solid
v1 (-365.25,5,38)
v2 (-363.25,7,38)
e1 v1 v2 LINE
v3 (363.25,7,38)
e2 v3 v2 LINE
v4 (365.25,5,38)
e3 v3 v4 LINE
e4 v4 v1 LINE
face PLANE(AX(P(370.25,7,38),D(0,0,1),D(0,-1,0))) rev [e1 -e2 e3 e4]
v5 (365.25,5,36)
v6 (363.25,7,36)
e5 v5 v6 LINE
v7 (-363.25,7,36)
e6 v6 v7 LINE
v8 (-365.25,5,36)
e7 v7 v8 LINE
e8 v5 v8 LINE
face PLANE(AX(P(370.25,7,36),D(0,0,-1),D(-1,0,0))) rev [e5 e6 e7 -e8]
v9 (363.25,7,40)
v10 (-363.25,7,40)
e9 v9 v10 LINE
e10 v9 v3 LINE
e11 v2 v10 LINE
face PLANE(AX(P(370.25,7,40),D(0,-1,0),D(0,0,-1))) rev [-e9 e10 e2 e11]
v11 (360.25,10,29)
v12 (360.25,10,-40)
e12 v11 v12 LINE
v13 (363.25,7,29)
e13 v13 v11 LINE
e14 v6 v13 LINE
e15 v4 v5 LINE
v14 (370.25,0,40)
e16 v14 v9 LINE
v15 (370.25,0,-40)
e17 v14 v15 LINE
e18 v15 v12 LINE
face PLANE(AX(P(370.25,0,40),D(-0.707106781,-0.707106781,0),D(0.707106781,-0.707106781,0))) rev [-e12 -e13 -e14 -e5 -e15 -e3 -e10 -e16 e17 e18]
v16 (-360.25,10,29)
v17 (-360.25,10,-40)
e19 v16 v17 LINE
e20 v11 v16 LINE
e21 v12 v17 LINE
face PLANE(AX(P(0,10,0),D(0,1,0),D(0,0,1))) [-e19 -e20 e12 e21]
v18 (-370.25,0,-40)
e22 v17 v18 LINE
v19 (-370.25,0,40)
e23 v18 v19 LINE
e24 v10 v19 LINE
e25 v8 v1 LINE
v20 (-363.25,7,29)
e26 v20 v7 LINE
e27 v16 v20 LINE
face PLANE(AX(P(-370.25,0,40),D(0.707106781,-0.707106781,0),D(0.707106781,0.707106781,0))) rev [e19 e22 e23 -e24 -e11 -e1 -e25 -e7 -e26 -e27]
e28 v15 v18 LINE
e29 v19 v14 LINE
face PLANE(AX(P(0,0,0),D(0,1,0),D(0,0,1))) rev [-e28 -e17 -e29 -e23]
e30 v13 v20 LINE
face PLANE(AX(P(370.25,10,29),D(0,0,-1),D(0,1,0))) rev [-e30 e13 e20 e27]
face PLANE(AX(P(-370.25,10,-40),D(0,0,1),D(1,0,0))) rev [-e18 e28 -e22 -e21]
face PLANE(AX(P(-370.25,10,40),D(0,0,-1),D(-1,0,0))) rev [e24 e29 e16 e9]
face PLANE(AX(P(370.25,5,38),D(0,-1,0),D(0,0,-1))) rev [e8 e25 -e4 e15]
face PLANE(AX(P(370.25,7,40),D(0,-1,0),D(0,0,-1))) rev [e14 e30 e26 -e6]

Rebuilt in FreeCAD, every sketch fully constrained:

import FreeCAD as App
import Part
import Sketcher
from FreeCAD import Vector
Q = App.Units.Quantity


def add_polygon(sketch, points):
    """Adds a closed chain of lines whose ends are joined by coincident constraints."""
    first, n = sketch.GeometryCount, len(points)
    for a, b in zip(points, points[1:] + points[:1]):
        sketch.addGeometry(Part.LineSegment(App.Vector(*a, 0), App.Vector(*b, 0)), False)
    for i in range(n):
        sketch.addConstraint(Sketcher.Constraint("Coincident", first + i, 2, first + (i + 1) % n, 1))

doc = App.newDocument("Part")
body = doc.addObject("PartDesign::Body", "Body")

# Sketch on XZ plane
sketch1 = body.newObject("Sketcher::SketchObject", "Sketch")
sketch1.AttachmentSupport = (doc.getObject("XZ_Plane"), [""])
sketch1.MapMode = "FlatFace"
add_polygon(sketch1, [(-370, -40), (-370, 40), (370, 40), (370, -40)])  # lines 0-3
sketch1.addConstraint([
    Sketcher.Constraint("Vertical", 0),
    Sketcher.Constraint("Horizontal", 1),
    Sketcher.Constraint("Vertical", 2),
    Sketcher.Constraint("Horizontal", 3),
    Sketcher.Constraint("Symmetric", 0, 2, 2, 2, -1, 1),
    Sketcher.Constraint("DistanceY", 0, 1, 0, 2, Q("80 mm")),
    Sketcher.Constraint("DistanceX", 1, 1, 1, 2, Q("740.5 mm")),
])
pad1 = body.newObject("PartDesign::Pad", "Pad")
pad1.Profile = sketch1
pad1.Length = 10
pad1.Reversed = True

# Sketch on YZ plane
sketch2 = body.newObject("Sketcher::SketchObject", "Sketch001")
sketch2.AttachmentSupport = (doc.getObject("YZ_Plane"), [""])
sketch2.MapMode = "FlatFace"
sketch2.AttachmentOffset = App.Placement(Vector(0, 0, -370.25), App.Rotation())
add_polygon(sketch2, [(10, 29), (7, 29), (7, 40), (10, 40)])  # lines 0-3
sketch2.addConstraint([
    Sketcher.Constraint("Horizontal", 0),
    Sketcher.Constraint("Vertical", 1),
    Sketcher.Constraint("Horizontal", 2),
    Sketcher.Constraint("Vertical", 3),
    Sketcher.Constraint("DistanceX", 0, 2, 0, 1, Q("3 mm")),
    Sketcher.Constraint("DistanceY", 1, 1, 1, 2, Q("11 mm")),
    Sketcher.Constraint("DistanceX", -1, 1, 0, 2, Q("7 mm")),
    Sketcher.Constraint("DistanceY", -1, 1, 0, 2, Q("29 mm")),
])
pocket1 = body.newObject("PartDesign::Pocket", "Pocket")
pocket1.Profile = sketch2
pocket1.Type = "ThroughAll"
pocket1.Reversed = True

# Sketch on YZ plane
sketch3 = body.newObject("Sketcher::SketchObject", "Sketch002")
sketch3.AttachmentSupport = (doc.getObject("YZ_Plane"), [""])
sketch3.MapMode = "FlatFace"
sketch3.AttachmentOffset = App.Placement(Vector(0, 0, -370.25), App.Rotation())
add_polygon(sketch3, [(7, 36), (5, 36), (5, 38), (7, 38)])  # lines 0-3
sketch3.addConstraint([
    Sketcher.Constraint("Horizontal", 0),
    Sketcher.Constraint("Vertical", 1),
    Sketcher.Constraint("Horizontal", 2),
    Sketcher.Constraint("Vertical", 3),
    Sketcher.Constraint("Equal", 2, 1),
    Sketcher.Constraint("DistanceX", 0, 2, 0, 1, Q("2 mm")),
    Sketcher.Constraint("DistanceX", -1, 1, 0, 2, Q("5 mm")),
    Sketcher.Constraint("DistanceY", -1, 1, 0, 2, Q("36 mm")),
])
pocket2 = body.newObject("PartDesign::Pocket", "Pocket001")
pocket2.Profile = sketch3
pocket2.Type = "ThroughAll"
pocket2.Reversed = True

# Sketch on XY plane
sketch4 = body.newObject("Sketcher::SketchObject", "Sketch003")
sketch4.AttachmentSupport = (doc.getObject("XY_Plane"), [""])
sketch4.MapMode = "FlatFace"
sketch4.AttachmentOffset = App.Placement(Vector(0, 0, -40), App.Rotation())
add_polygon(sketch4, [(370, 0), (360, 10), (370, 10)])  # lines 0-2
add_polygon(sketch4, [(-370, 0), (-370, 10), (-360, 10)])  # lines 3-5
sketch4.addConstraint([
    Sketcher.Constraint("Horizontal", 1),
    Sketcher.Constraint("Vertical", 2),
    Sketcher.Constraint("Vertical", 3),
    Sketcher.Constraint("Horizontal", 4),
    Sketcher.Constraint("Symmetric", 2, 2, 5, 2, -1, 1),
    Sketcher.Constraint("Symmetric", 0, 2, 4, 2, -2),
    Sketcher.Constraint("PointOnObject", 2, 2, -1),
    Sketcher.Constraint("Perpendicular", 0, 5),
    Sketcher.Constraint("DistanceX", 1, 1, 1, 2, Q("10 mm")),
    Sketcher.Constraint("DistanceX", 3, 2, 0, 2, Q("730.5 mm")),
])
pocket3 = body.newObject("PartDesign::Pocket", "Pocket002")
pocket3.Profile = sketch4
pocket3.Type = "ThroughAll"
pocket3.Reversed = True

doc.recompute()
